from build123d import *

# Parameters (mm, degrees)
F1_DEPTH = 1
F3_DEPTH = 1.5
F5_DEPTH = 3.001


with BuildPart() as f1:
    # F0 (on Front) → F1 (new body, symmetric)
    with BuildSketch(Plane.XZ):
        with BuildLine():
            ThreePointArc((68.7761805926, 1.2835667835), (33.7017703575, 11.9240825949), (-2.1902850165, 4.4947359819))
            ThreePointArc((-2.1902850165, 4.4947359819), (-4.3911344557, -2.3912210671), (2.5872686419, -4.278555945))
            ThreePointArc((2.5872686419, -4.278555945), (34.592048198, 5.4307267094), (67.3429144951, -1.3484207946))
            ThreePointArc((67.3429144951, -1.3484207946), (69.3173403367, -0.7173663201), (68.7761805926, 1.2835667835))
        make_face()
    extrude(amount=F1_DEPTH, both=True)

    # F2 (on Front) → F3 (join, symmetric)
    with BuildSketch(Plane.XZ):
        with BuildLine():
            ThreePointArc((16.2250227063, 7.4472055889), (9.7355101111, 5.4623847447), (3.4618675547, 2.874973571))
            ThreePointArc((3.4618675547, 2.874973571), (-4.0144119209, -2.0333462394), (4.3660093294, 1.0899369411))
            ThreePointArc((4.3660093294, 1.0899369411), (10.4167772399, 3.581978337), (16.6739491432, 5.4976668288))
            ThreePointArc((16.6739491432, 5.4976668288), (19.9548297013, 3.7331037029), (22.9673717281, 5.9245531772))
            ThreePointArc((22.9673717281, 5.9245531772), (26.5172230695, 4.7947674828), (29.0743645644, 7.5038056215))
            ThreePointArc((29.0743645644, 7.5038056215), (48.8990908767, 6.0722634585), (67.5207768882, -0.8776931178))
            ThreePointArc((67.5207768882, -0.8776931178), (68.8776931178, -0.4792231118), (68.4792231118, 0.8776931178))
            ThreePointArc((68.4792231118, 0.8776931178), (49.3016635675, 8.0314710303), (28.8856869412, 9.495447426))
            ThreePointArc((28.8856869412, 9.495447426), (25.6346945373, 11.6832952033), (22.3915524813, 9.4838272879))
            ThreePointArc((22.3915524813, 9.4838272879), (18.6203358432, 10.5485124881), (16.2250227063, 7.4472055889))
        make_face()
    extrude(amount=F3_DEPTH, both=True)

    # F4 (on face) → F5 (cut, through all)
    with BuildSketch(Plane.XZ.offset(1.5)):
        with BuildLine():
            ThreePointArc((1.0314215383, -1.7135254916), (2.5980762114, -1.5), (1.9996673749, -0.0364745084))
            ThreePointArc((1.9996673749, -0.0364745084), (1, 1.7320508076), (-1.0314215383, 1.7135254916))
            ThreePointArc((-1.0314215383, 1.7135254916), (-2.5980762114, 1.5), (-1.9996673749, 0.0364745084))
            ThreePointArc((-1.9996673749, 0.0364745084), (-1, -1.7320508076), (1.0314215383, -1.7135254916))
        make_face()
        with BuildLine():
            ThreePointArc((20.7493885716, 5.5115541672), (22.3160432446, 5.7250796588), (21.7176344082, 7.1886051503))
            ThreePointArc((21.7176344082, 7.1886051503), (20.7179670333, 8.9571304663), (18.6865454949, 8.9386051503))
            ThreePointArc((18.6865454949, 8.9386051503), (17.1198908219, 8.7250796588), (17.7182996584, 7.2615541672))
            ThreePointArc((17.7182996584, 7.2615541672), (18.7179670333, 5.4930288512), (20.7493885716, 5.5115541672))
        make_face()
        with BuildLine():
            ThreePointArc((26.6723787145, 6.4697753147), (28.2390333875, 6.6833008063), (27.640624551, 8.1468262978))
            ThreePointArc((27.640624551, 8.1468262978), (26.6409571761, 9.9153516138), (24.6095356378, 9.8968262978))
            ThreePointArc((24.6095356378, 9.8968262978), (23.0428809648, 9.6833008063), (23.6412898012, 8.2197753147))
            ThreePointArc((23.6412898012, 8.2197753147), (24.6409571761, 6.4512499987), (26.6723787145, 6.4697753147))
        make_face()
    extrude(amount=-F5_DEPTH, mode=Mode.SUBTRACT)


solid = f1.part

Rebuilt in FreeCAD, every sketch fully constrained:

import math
import FreeCAD as App
import Part
import Sketcher

V = App.Vector

doc = App.newDocument("Part")
body = doc.addObject("PartDesign::Body", "Body")

sketch1 = doc.addObject("Sketcher::SketchObject", "Sketch")
body.addObject(sketch1)
sketch1.AttachmentSupport = (doc.XZ_Plane, [""])
sketch1.MapMode = "FlatFace"
sketch1.addGeometry([
    Part.ArcOfCircle(Part.Circle(V(30.344522, -62.270715, 0), V(0, 0, 1), 74.270715), math.radians(58.838393), math.radians(115.979976)),
    Part.ArcOfCircle(Part.Circle(V(0, 0, 0), V(0, 0, 1), 5), math.radians(115.979976), math.radians(301.161607)),
    Part.ArcOfCircle(Part.Circle(V(37.655478, -62.270715, 0), V(0, 0, 1), 67.770715), math.radians(64.020024), math.radians(121.161607)),
    Part.ArcOfCircle(Part.Circle(V(68, 0, 0), V(0, 0, 1), 1.5), math.radians(-115.979976), math.radians(58.838393)),
], False)
sketch1.addConstraint([
    Sketcher.Constraint("Tangent", 0, 2, 1, 1),
    Sketcher.Constraint("Tangent", 1, 2, 2, 2),
    Sketcher.Constraint("Tangent", 2, 1, 3, 1),
    Sketcher.Constraint("Tangent", 3, 2, 0, 1),
    Sketcher.Constraint("Coincident", 1, 3, -1, 1),
    Sketcher.Constraint("PointOnObject", 3, 3, -1),
    Sketcher.Constraint("Horizontal", 0, 3, 2, 3),
    Sketcher.Constraint("Radius", 1, 5.0),
    Sketcher.Constraint("Radius", 3, 1.5),
    Sketcher.Constraint("DistanceX", -1, 1, 3, 3, 68.0),
    Sketcher.Constraint("Radius", 0, 74.270715),
])
pad1 = doc.addObject("PartDesign::Pad", "Pad")
body.addObject(pad1)
pad1.Profile = sketch1
pad1.Length = 2
pad1.Midplane = True

sketch2 = doc.addObject("Sketcher::SketchObject", "Sketch001")
body.addObject(sketch2)
sketch2.AttachmentSupport = (doc.XZ_Plane, [""])
sketch2.MapMode = "FlatFace"
sketch2.addGeometry([
    Part.ArcOfCircle(Part.Circle(V(34, -62.270715, 0), V(0, 0, 1), 71.948164), math.radians(104.303165), math.radians(115.115621)),
    Part.ArcOfCircle(Part.Circle(V(0, 0, 0), V(0, 0, 1), 4.5), math.radians(39.708579), math.radians(374.016907)),
    Part.ArcOfCircle(Part.Circle(V(34, -62.270715, 0), V(0, 0, 1), 69.948164), math.radians(104.341359), math.radians(115.06565)),
    Part.ArcOfCircle(Part.Circle(V(19.717967, 7.22508, 0), V(0, 0, 1), 3.5), math.radians(-150.426048), math.radians(-21.813031)),
    Part.ArcOfCircle(Part.Circle(V(25.640957, 8.183301, 0), V(0, 0, 1), 3.5), math.radians(-139.807593), math.radians(-11.194576)),
    Part.ArcOfCircle(Part.Circle(V(34, -62.270715, 0), V(0, 0, 1), 69.948164), math.radians(61.365325), math.radians(94.038017)),
    Part.ArcOfCircle(Part.Circle(V(68, 0, 0), V(0, 0, 1), 1), math.radians(-118.634675), math.radians(61.365325)),
    Part.ArcOfCircle(Part.Circle(V(34, -62.270715, 0), V(0, 0, 1), 71.948164), math.radians(61.365325), math.radians(94.076211)),
    Part.ArcOfCircle(Part.Circle(V(25.640957, 8.183301, 0), V(0, 0, 1), 3.5), math.radians(22.018073), math.radians(158.186969)),
    Part.ArcOfCircle(Part.Circle(V(19.717967, 7.22508, 0), V(0, 0, 1), 3.5), math.radians(40.192407), math.radians(176.361304)),
], False)
sketch2.addConstraint([
    Sketcher.Constraint("Coincident", 0, 2, 1, 1),
    Sketcher.Constraint("Coincident", 1, 2, 2, 2),
    Sketcher.Constraint("Coincident", 2, 1, 3, 1),
    Sketcher.Constraint("Coincident", 3, 2, 4, 1),
    Sketcher.Constraint("Coincident", 4, 2, 5, 2),
    Sketcher.Constraint("Tangent", 5, 1, 6, 1),
    Sketcher.Constraint("Tangent", 6, 2, 7, 1),
    Sketcher.Constraint("Coincident", 7, 2, 8, 1),
    Sketcher.Constraint("Coincident", 8, 2, 9, 1),
    Sketcher.Constraint("Coincident", 9, 2, 0, 1),
    Sketcher.Constraint("Coincident", 1, 3, -1, 1),
    Sketcher.Constraint("Coincident", 2, 3, 0, 3),
    Sketcher.Constraint("Coincident", 5, 3, 0, 3),
    Sketcher.Constraint("Coincident", 7, 3, 0, 3),
    Sketcher.Constraint("Coincident", 8, 3, 4, 3),
    Sketcher.Constraint("Coincident", 9, 3, 3, 3),
    Sketcher.Constraint("Equal", 3, 4),
    Sketcher.Constraint("Equal", 2, 5),
    Sketcher.Constraint("Equal", 0, 7),
    Sketcher.Constraint("Equal", 4, 8),
    Sketcher.Constraint("Equal", 8, 9),
    Sketcher.Constraint("PointOnObject", 6, 3, -1),
    Sketcher.Constraint("Radius", 6, 1.0),
    Sketcher.Constraint("Radius", 1, 4.5),
    Sketcher.Constraint("Radius", 3, 3.5),
    Sketcher.Constraint("DistanceX", -1, 1, 0, 3, 34.0),
    Sketcher.Constraint("DistanceX", -1, 1, 6, 3, 68.0),
    Sketcher.Constraint("Radius", 0, 71.948164),
    Sketcher.Constraint("DistanceY", -1, 1, 4, 3, 8.183301),
    Sketcher.Constraint("DistanceX", 0, 2, 3, 3, 16.256099),
    Sketcher.Constraint("DistanceY", -1, 1, 3, 3, 7.22508),
    Sketcher.Constraint("DistanceX", -1, 1, 3, 2, 22.967372),
])
pad2 = doc.addObject("PartDesign::Pad", "Pad001")
body.addObject(pad2)
pad2.Profile = sketch2
pad2.Length = 3
pad2.Midplane = True

sketch3 = doc.addObject("Sketcher::SketchObject", "Sketch002")
body.addObject(sketch3)
sketch3.AttachmentSupport = (doc.XZ_Plane, [""])
sketch3.MapMode = "FlatFace"
sketch3.AttachmentOffset = App.Placement(V(0, 0, 1.5), App.Rotation())
sketch3.addGeometry([
    Part.ArcOfCircle(Part.Circle(V(1.732051, -1, 0), V(0, 0, 1), 1), math.radians(-134.477512), math.radians(74.477512)),
    Part.ArcOfCircle(Part.Circle(V(0, 0, 0), V(0, 0, 1), 2), math.radians(-1.044976), math.radians(121.044976)),
    Part.ArcOfCircle(Part.Circle(V(-1.732051, 1, 0), V(0, 0, 1), 1), math.radians(45.522488), math.radians(254.477512)),
    Part.ArcOfCircle(Part.Circle(V(0, 0, 0), V(0, 0, 1), 2), math.radians(178.955024), math.radians(301.044976)),
    Part.ArcOfCircle(Part.Circle(V(21.450018, 6.22508, 0), V(0, 0, 1), 1), math.radians(-134.477512), math.radians(74.477512)),
    Part.ArcOfCircle(Part.Circle(V(19.717967, 7.22508, 0), V(0, 0, 1), 2), math.radians(-1.044976), math.radians(121.044976)),
    Part.ArcOfCircle(Part.Circle(V(17.985916, 8.22508, 0), V(0, 0, 1), 1), math.radians(45.522488), math.radians(254.477512)),
    Part.ArcOfCircle(Part.Circle(V(19.717967, 7.22508, 0), V(0, 0, 1), 2), math.radians(178.955024), math.radians(301.044976)),
    Part.ArcOfCircle(Part.Circle(V(27.373008, 7.183301, 0), V(0, 0, 1), 1), math.radians(-134.477512), math.radians(74.477512)),
    Part.ArcOfCircle(Part.Circle(V(25.640957, 8.183301, 0), V(0, 0, 1), 2), math.radians(-1.044976), math.radians(121.044976)),
    Part.ArcOfCircle(Part.Circle(V(23.908906, 9.183301, 0), V(0, 0, 1), 1), math.radians(45.522488), math.radians(254.477512)),
    Part.ArcOfCircle(Part.Circle(V(25.640957, 8.183301, 0), V(0, 0, 1), 2), math.radians(178.955024), math.radians(301.044976)),
], False)
sketch3.addConstraint([
    Sketcher.Constraint("Coincident", 0, 2, 1, 1),
    Sketcher.Constraint("Coincident", 1, 2, 2, 1),
    Sketcher.Constraint("Coincident", 2, 2, 3, 1),
    Sketcher.Constraint("Coincident", 3, 2, 0, 1),
    Sketcher.Constraint("Coincident", 4, 2, 5, 1),
    Sketcher.Constraint("Coincident", 5, 2, 6, 1),
    Sketcher.Constraint("Coincident", 6, 2, 7, 1),
    Sketcher.Constraint("Coincident", 7, 2, 4, 1),
    Sketcher.Constraint("Coincident", 8, 2, 9, 1),
    Sketcher.Constraint("Coincident", 9, 2, 10, 1),
    Sketcher.Constraint("Coincident", 10, 2, 11, 1),
    Sketcher.Constraint("Coincident", 11, 2, 8, 1),
    Sketcher.Constraint("Coincident", 1, 3, -1, 1),
    Sketcher.Constraint("Coincident", 3, 3, -1, 1),
    Sketcher.Constraint("Coincident", 7, 3, 5, 3),
    Sketcher.Constraint("Coincident", 11, 3, 9, 3),
    Sketcher.Constraint("Equal", 0, 2),
    Sketcher.Constraint("Equal", 1, 3),
    Sketcher.Constraint("Equal", 2, 4),
    Sketcher.Constraint("Equal", 3, 5),
    Sketcher.Constraint("Equal", 4, 6),
    Sketcher.Constraint("Equal", 5, 7),
    Sketcher.Constraint("Equal", 6, 8),
    Sketcher.Constraint("Equal", 7, 9),
    Sketcher.Constraint("Equal", 8, 10),
    Sketcher.Constraint("Equal", 9, 11),
    Sketcher.Constraint("Symmetric", 0, 3, 2, 3, -1, 1),
    Sketcher.Constraint("Radius", 0, 1.0),
    Sketcher.Constraint("Radius", 1, 2.0),
    Sketcher.Constraint("DistanceY", 0, 3, -1, 1, 1.0),
    Sketcher.Constraint("DistanceY", 4, 3, 5, 3, 1.0),
    Sketcher.Constraint("DistanceY", 5, 3, 6, 3, 1.0),
    Sketcher.Constraint("DistanceY", 8, 3, 9, 3, 1.0),
    Sketcher.Constraint("DistanceY", 9, 3, 10, 3, 1.0),
    Sketcher.Constraint("DistanceY", 0, 2, 1, 2, 1.75),
    Sketcher.Constraint("DistanceY", 4, 2, 5, 2, 1.75),
    Sketcher.Constraint("DistanceY", 7, 2, 6, 2, 1.75),
    Sketcher.Constraint("DistanceY", 8, 2, 9, 2, 1.75),
    Sketcher.Constraint("DistanceY", 11, 2, 10, 2, 1.75),
    Sketcher.Constraint("DistanceY", -1, 1, 8, 3, 7.183301),
    Sketcher.Constraint("DistanceX", -1, 1, 6, 2, 17.7183),
    Sketcher.Constraint("DistanceY", -1, 1, 4, 3, 6.22508),
    Sketcher.Constraint("DistanceX", -1, 1, 10, 2, 23.64129),
])
pocket1 = doc.addObject("PartDesign::Pocket", "Pocket")
body.addObject(pocket1)
pocket1.Profile = sketch3
pocket1.Type = "ThroughAll"

doc.recompute()
